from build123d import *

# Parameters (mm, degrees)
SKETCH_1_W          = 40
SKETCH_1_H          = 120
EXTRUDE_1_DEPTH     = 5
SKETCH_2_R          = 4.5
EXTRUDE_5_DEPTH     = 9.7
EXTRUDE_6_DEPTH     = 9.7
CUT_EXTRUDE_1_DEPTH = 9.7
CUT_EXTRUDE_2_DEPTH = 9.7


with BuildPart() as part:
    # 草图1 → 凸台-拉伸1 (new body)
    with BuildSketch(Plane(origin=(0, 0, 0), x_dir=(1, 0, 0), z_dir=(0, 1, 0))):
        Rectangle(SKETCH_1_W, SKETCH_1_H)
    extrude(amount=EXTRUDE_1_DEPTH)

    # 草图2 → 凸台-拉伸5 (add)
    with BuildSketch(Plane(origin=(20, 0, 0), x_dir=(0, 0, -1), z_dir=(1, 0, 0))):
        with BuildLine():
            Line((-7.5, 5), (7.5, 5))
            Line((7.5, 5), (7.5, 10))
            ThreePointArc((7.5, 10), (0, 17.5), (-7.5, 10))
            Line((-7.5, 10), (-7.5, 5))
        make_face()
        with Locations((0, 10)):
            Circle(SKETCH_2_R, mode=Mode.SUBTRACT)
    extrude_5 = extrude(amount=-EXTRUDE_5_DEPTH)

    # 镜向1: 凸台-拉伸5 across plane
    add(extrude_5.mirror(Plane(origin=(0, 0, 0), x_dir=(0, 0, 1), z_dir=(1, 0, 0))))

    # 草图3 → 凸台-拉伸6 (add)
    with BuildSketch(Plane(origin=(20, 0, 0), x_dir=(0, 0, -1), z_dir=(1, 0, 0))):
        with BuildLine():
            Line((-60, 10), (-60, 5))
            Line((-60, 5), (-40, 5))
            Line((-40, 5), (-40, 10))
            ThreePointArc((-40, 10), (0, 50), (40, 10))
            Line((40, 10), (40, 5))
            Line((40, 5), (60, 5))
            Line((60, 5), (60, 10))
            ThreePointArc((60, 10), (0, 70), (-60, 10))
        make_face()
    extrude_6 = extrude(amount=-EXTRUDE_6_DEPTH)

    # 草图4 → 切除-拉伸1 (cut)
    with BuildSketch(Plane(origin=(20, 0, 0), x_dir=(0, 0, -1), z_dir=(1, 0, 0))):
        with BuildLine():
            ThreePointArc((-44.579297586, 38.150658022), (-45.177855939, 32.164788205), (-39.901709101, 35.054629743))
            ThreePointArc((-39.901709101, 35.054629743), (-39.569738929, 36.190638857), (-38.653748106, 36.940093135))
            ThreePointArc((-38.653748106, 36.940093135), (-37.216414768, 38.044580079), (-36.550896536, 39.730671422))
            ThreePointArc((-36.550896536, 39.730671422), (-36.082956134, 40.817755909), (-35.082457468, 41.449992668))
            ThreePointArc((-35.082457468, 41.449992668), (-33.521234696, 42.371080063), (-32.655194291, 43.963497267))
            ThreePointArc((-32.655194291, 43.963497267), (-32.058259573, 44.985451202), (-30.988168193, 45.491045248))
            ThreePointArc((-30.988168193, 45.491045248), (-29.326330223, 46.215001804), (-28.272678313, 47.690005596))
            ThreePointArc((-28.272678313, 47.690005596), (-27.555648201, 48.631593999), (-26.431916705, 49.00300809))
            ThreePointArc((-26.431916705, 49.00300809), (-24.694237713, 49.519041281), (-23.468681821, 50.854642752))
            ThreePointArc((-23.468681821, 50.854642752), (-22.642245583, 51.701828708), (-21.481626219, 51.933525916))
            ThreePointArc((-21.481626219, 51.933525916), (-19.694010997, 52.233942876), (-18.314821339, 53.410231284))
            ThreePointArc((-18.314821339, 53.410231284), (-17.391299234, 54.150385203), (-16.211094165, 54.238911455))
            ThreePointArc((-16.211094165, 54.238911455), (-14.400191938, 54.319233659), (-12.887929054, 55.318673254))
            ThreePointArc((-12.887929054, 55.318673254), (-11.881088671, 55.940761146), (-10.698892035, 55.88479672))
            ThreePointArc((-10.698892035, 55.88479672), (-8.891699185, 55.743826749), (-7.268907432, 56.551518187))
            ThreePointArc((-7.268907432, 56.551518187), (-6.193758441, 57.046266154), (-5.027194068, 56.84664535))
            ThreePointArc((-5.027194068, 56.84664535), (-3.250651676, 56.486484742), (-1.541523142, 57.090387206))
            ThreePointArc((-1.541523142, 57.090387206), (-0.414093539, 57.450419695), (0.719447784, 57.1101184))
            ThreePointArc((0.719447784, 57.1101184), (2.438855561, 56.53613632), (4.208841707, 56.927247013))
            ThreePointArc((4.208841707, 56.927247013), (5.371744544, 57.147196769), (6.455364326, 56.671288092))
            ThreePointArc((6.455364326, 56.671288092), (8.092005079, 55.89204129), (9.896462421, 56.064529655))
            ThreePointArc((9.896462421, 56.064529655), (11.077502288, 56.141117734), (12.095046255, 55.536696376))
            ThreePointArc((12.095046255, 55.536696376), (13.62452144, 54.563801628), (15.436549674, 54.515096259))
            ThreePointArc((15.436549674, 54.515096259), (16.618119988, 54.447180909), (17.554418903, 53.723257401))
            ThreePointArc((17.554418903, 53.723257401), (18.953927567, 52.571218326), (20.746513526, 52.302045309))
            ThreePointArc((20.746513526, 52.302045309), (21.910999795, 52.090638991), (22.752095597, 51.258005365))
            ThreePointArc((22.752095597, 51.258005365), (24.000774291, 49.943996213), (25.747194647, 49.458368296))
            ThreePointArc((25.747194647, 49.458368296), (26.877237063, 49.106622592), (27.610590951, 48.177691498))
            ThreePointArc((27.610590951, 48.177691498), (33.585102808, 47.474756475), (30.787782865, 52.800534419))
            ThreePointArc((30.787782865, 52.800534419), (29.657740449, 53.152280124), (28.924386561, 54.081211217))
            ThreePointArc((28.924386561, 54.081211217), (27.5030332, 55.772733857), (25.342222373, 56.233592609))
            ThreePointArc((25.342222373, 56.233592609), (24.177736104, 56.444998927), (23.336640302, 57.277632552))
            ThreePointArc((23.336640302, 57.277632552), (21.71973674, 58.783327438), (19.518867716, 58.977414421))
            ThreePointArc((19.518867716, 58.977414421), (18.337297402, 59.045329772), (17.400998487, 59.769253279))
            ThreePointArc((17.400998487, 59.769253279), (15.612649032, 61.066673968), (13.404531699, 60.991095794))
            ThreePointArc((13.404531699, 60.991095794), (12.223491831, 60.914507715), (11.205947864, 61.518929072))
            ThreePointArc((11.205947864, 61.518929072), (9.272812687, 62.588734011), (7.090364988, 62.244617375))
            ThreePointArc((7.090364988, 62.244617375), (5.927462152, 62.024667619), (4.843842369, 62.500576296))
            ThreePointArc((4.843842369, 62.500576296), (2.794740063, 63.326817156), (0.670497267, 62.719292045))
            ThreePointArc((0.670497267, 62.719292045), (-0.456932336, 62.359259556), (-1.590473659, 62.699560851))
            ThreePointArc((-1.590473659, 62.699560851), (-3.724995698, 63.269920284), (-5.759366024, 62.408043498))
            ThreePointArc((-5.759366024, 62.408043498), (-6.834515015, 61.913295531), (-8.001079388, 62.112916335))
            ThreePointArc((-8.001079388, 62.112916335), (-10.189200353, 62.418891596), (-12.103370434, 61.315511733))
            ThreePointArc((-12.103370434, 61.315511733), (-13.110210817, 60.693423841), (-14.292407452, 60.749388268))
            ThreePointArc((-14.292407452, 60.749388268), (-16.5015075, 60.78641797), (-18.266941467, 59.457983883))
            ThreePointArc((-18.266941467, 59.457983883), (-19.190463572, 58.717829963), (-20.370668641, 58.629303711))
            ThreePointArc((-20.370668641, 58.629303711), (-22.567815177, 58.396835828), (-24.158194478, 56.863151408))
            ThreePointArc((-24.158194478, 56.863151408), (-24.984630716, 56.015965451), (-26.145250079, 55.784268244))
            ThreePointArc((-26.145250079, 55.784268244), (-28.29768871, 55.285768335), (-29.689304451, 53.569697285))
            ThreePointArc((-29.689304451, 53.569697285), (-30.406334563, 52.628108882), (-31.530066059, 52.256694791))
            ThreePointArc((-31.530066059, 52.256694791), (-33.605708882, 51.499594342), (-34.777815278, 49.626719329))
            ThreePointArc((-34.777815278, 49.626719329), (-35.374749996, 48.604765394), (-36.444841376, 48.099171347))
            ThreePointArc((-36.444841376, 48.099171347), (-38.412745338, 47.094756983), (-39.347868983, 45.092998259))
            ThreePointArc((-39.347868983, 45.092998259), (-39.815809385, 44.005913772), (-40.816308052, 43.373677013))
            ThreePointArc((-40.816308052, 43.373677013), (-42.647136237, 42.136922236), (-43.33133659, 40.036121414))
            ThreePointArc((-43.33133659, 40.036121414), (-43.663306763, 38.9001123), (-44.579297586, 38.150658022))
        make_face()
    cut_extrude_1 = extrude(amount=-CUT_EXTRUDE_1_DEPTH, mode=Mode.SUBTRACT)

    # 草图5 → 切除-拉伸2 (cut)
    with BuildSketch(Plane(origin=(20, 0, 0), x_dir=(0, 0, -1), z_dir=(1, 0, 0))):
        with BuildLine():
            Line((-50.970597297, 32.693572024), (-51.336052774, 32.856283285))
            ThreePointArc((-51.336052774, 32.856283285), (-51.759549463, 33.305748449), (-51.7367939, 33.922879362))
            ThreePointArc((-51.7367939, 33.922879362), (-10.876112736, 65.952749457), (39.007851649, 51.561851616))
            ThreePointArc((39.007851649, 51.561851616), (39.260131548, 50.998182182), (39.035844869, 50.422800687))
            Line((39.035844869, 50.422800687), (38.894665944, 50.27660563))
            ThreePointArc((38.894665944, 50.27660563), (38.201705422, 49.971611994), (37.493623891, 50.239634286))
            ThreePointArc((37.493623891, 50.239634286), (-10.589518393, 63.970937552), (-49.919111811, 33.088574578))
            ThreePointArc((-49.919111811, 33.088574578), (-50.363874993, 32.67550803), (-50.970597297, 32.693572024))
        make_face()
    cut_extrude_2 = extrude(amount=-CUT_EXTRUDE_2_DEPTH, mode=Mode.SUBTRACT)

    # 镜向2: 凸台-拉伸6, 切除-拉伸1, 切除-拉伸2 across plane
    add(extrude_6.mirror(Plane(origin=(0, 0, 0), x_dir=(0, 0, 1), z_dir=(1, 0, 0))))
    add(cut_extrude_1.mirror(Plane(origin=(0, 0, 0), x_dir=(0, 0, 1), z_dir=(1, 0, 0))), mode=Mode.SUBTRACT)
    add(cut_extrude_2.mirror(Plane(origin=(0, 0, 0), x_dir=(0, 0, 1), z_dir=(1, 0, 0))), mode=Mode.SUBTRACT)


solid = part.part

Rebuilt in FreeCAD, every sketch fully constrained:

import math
import FreeCAD as App
import Part
import Sketcher
from FreeCAD import Vector
Q = App.Units.Quantity


def add_polygon(sketch, points):
    """Adds a closed chain of lines whose ends are joined by coincident constraints."""
    first, n = sketch.GeometryCount, len(points)
    for a, b in zip(points, points[1:] + points[:1]):
        sketch.addGeometry(Part.LineSegment(App.Vector(*a, 0), App.Vector(*b, 0)), False)
    for i in range(n):
        sketch.addConstraint(Sketcher.Constraint("Coincident", first + i, 2, first + (i + 1) % n, 1))

doc = App.newDocument("Part")
params = doc.addObject("Spreadsheet::Sheet", "Params")
for row, (alias, value) in enumerate([
    ("sketch1_width", "40 mm"),
    ("sketch1_height", "120 mm"),
    ("pad1_length", "5 mm"),
    ("sketch2_diameter", "9 mm"),
    ("sketch2_radius", "7.5 mm"),
    ("sketch2_width", "5 mm"),
    ("pad2_length", "9.7 mm"),
    ("sketch3_radius", "40 mm"),
    ("sketch3_radius2", "60 mm"),
    ("sketch3_width", "5 mm"),
    ("pad3_length", "9.7 mm"),
    ("sketch4_radius", "2 mm"),
    ("sketch4_radius2", "3.4 mm"),
    ("pocket1_length", "9.7 mm"),
    ("sketch5_radius", "55 mm"),
    ("sketch5_radius2", "1 mm"),
    ("sketch5_radius3", "57 mm"),
    ("sketch5_radius4", "0.8 mm"),
    ("pocket2_length", "9.7 mm"),
], start=1):
    params.set(f"A{row}", alias)
    params.set(f"B{row}", "=" + value)
    params.setAlias(f"B{row}", alias)

body = doc.addObject("PartDesign::Body", "Body")

sketch1 = doc.addObject("Sketcher::SketchObject", "Sketch")
body.addObject(sketch1)
sketch1.AttachmentSupport = (doc.XZ_Plane, [""])
sketch1.MapMode = "FlatFace"
add_polygon(sketch1, [(-20, -60), (-20, 60), (20, 60), (20, -60)])
sketch1.addConstraint([
    Sketcher.Constraint("Vertical", 0),
    Sketcher.Constraint("Horizontal", 1),
    Sketcher.Constraint("Vertical", 2),
    Sketcher.Constraint("Horizontal", 3),
    Sketcher.Constraint("Symmetric", 0, 2, 2, 2, -1, 1),
    Sketcher.Constraint("DistanceX", 1, 1, 1, 2, Q("40 mm")),
    Sketcher.Constraint("DistanceY", 0, 1, 0, 2, Q("120 mm")),
])
sketch1.setExpression("Constraints[9]", "Params.sketch1_width")
sketch1.setExpression("Constraints[10]", "Params.sketch1_height")
pad1 = doc.addObject("PartDesign::Pad", "Pad")
body.addObject(pad1)
pad1.Profile = sketch1
pad1.setExpression("Length", "Params.pad1_length")
pad1.Reversed = True

sketch2 = doc.addObject("Sketcher::SketchObject", "Sketch001")
body.addObject(sketch2)
sketch2.AttachmentSupport = (doc.YZ_Plane, [""])
sketch2.MapMode = "FlatFace"
sketch2.AttachmentOffset = App.Placement(Vector(0, 0, 20), App.Rotation())
sketch2.addGeometry([
    Part.LineSegment(Vector(5, 7.5, 0), Vector(5, -7.5, 0)),
    Part.LineSegment(Vector(5, -7.5, 0), Vector(10, -7.5, 0)),
    Part.ArcOfCircle(Part.Circle(Vector(10, 0, 0), Vector(0, 0, 1), 7.5), math.radians(-90), math.radians(90)),
    Part.LineSegment(Vector(10, 7.5, 0), Vector(5, 7.5, 0)),
    Part.Circle(Vector(10, 0, 0), Vector(0, 0, 1), 4.5),
], False)
sketch2.addConstraint([
    Sketcher.Constraint("Coincident", 0, 2, 1, 1),
    Sketcher.Constraint("Tangent", 1, 2, 2, 1),
    Sketcher.Constraint("Tangent", 2, 2, 3, 1),
    Sketcher.Constraint("Coincident", 3, 2, 0, 1),
    Sketcher.Constraint("Vertical", 0),
    Sketcher.Constraint("Horizontal", 1),
    Sketcher.Constraint("Horizontal", 3),
    Sketcher.Constraint("Coincident", 4, 3, 2, 3),
    Sketcher.Constraint("PointOnObject", 2, 3, -1),
    Sketcher.Constraint("Diameter", 4, Q("9 mm")),
    Sketcher.Constraint("Radius", 2, Q("7.5 mm")),
    Sketcher.Constraint("DistanceX", 1, 1, 1, 2, Q("5 mm")),
    Sketcher.Constraint("DistanceX", -1, 1, 2, 3, Q("10 mm")),
])
sketch2.setExpression("Constraints[9]", "Params.sketch2_diameter")
sketch2.setExpression("Constraints[10]", "Params.sketch2_radius")
sketch2.setExpression("Constraints[11]", "Params.sketch2_width")
pad2 = doc.addObject("PartDesign::Pad", "Pad001")
body.addObject(pad2)
pad2.Profile = sketch2
pad2.setExpression("Length", "Params.pad2_length")
pad2.Reversed = True
doc.recompute()

mirrored = doc.addObject("PartDesign::Mirrored", "Mirrored")
body.addObject(mirrored)
mirrored.Originals = [pad2]
mirrored.MirrorPlane = (doc.YZ_Plane, [""])
body.Tip = mirrored

sketch3 = doc.addObject("Sketcher::SketchObject", "Sketch002")
body.addObject(sketch3)
sketch3.AttachmentSupport = (doc.YZ_Plane, [""])
sketch3.MapMode = "FlatFace"
sketch3.AttachmentOffset = App.Placement(Vector(0, 0, 20), App.Rotation())
sketch3.addGeometry([
    Part.LineSegment(Vector(10, 60, 0), Vector(5, 60, 0)),
    Part.LineSegment(Vector(5, 60, 0), Vector(5, 40, 0)),
    Part.LineSegment(Vector(5, 40, 0), Vector(10, 40, 0)),
    Part.ArcOfCircle(Part.Circle(Vector(10, 0, 0), Vector(0, 0, 1), 40), math.radians(-90), math.radians(90)),
    Part.LineSegment(Vector(10, -40, 0), Vector(5, -40, 0)),
    Part.LineSegment(Vector(5, -40, 0), Vector(5, -60, 0)),
    Part.LineSegment(Vector(5, -60, 0), Vector(10, -60, 0)),
    Part.ArcOfCircle(Part.Circle(Vector(10, 0, 0), Vector(0, 0, 1), 60), math.radians(-90), math.radians(90)),
], False)
sketch3.addConstraint([
    Sketcher.Constraint("Coincident", 0, 2, 1, 1),
    Sketcher.Constraint("Coincident", 1, 2, 2, 1),
    Sketcher.Constraint("Tangent", 2, 2, 3, 2),
    Sketcher.Constraint("Tangent", 3, 1, 4, 1),
    Sketcher.Constraint("Coincident", 4, 2, 5, 1),
    Sketcher.Constraint("Coincident", 5, 2, 6, 1),
    Sketcher.Constraint("Tangent", 6, 2, 7, 1),
    Sketcher.Constraint("Tangent", 7, 2, 0, 1),
    Sketcher.Constraint("Horizontal", 0),
    Sketcher.Constraint("Vertical", 1),
    Sketcher.Constraint("Horizontal", 2),
    Sketcher.Constraint("Horizontal", 4),
    Sketcher.Constraint("Vertical", 5),
    Sketcher.Constraint("Horizontal", 6),
    Sketcher.Constraint("Coincident", 7, 3, 3, 3),
    Sketcher.Constraint("Symmetric", 1, 2, 4, 2, -1),
    Sketcher.Constraint("Radius", 3, Q("40 mm")),
    Sketcher.Constraint("Radius", 7, Q("60 mm")),
    Sketcher.Constraint("DistanceX", 0, 2, 0, 1, Q("5 mm")),
    Sketcher.Constraint("DistanceX", -1, 1, 3, 3, Q("10 mm")),
])
sketch3.setExpression("Constraints[16]", "Params.sketch3_radius")
sketch3.setExpression("Constraints[17]", "Params.sketch3_radius2")
sketch3.setExpression("Constraints[18]", "Params.sketch3_width")
pad3 = doc.addObject("PartDesign::Pad", "Pad002")
body.addObject(pad3)
pad3.Profile = sketch3
pad3.setExpression("Length", "Params.pad3_length")
pad3.Reversed = True

sketch4 = doc.addObject("Sketcher::SketchObject", "Sketch003")
body.addObject(sketch4)
sketch4.AttachmentSupport = (doc.YZ_Plane, [""])
sketch4.MapMode = "FlatFace"
sketch4.AttachmentOffset = App.Placement(Vector(0, 0, 20), App.Rotation())
sketch4.addGeometry([
    Part.ArcOfCircle(Part.Circle(Vector(35, 43.30127, 0), Vector(0, 0, 1), 3.4), math.radians(22.079356), math.radians(270.920644)),
    Part.ArcOfCircle(Part.Circle(Vector(35.086765, 37.901967, 0), Vector(0, 0, 1), 2), math.radians(22.079356), math.radians(90.920644)),
    Part.ArcOfCircle(Part.Circle(Vector(40.090751, 39.931776, 0), Vector(0, 0, 1), 3.4), math.radians(-157.920644), math.radians(-96.079356)),
    Part.ArcOfCircle(Part.Circle(Vector(39.51886, 34.562144, 0), Vector(0, 0, 1), 2), math.radians(15.079356), math.radians(83.920644)),
    Part.ArcOfCircle(Part.Circle(Vector(44.732919, 35.96699, 0), Vector(0, 0, 1), 3.4), math.radians(-164.920644), math.radians(-103.079356)),
    Part.ArcOfCircle(Part.Circle(Vector(43.510897, 30.707079, 0), Vector(0, 0, 1), 2), math.radians(8.079356), math.radians(76.920644)),
    Part.ArcOfCircle(Part.Circle(Vector(48.857298, 31.46602, 0), Vector(0, 0, 1), 3.4), math.radians(-171.920644), math.radians(-110.079356)),
    Part.ArcOfCircle(Part.Circle(Vector(47.003363, 26.394242, 0), Vector(0, 0, 1), 2), math.radians(1.079356), math.radians(69.920644)),
    Part.ArcOfCircle(Part.Circle(Vector(52.402405, 26.495963, 0), Vector(0, 0, 1), 3.4), math.radians(-178.920644), math.radians(-117.079356)),
    Part.ArcOfCircle(Part.Circle(Vector(49.944194, 21.687928, 0), Vector(0, 0, 1), 2), math.radians(-5.920644), math.radians(62.920644)),
    Part.ArcOfCircle(Part.Circle(Vector(55.315389, 21.130913, 0), Vector(0, 0, 1), 3.4), math.radians(174.079356), math.radians(235.920644)),
    Part.ArcOfCircle(Part.Circle(Vector(52.28955, 16.658297, 0), Vector(0, 0, 1), 2), math.radians(-12.920644), math.radians(55.920644)),
    Part.ArcOfCircle(Part.Circle(Vector(57.552826, 15.45085, 0), Vector(0, 0, 1), 3.4), math.radians(167.079356), math.radians(228.920644)),
    Part.ArcOfCircle(Part.Circle(Vector(54.004466, 11.380329, 0), Vector(0, 0, 1), 2), math.radians(-19.920644), math.radians(48.920644)),
    Part.ArcOfCircle(Part.Circle(Vector(59.081359, 9.54045, 0), Vector(0, 0, 1), 3.4), math.radians(160.079356), math.radians(221.920644)),
    Part.ArcOfCircle(Part.Circle(Vector(55.063376, 5.932706, 0), Vector(0, 0, 1), 2), math.radians(-26.920644), math.radians(41.920644)),
    Part.ArcOfCircle(Part.Circle(Vector(59.878203, 3.487824, 0), Vector(0, 0, 1), 3.4), math.radians(153.079356), math.radians(214.920644)),
    Part.ArcOfCircle(Part.Circle(Vector(55.450496, 0.39664, 0), Vector(0, 0, 1), 2), math.radians(-33.920644), math.radians(34.920644)),
    Part.ArcOfCircle(Part.Circle(Vector(59.931477, -2.616798, 0), Vector(0, 0, 1), 3.4), math.radians(146.079356), math.radians(207.920644)),
    Part.ArcOfCircle(Part.Circle(Vector(55.160053, -5.145338, 0), Vector(0, 0, 1), 2), math.radians(-40.920644), math.radians(27.920644)),
    Part.ArcOfCircle(Part.Circle(Vector(59.240388, -8.682409, 0), Vector(0, 0, 1), 3.4), math.radians(139.079356), math.radians(200.920644)),
    Part.ArcOfCircle(Part.Circle(Vector(54.196378, -10.610612, 0), Vector(0, 0, 1), 2), math.radians(-47.920644), math.radians(20.920644)),
    Part.ArcOfCircle(Part.Circle(Vector(57.815238, -14.618585, 0), Vector(0, 0, 1), 3.4), math.radians(132.079356), math.radians(193.920644)),
    Part.ArcOfCircle(Part.Circle(Vector(52.573837, -15.917705, 0), Vector(0, 0, 1), 2), math.radians(-54.920644), math.radians(13.920644)),
    Part.ArcOfCircle(Part.Circle(Vector(55.677273, -20.336832, 0), Vector(0, 0, 1), 3.4), math.radians(125.079356), math.radians(186.920644)),
    Part.ArcOfCircle(Part.Circle(Vector(50.316617, -20.987503, 0), Vector(0, 0, 1), 2), math.radians(-61.920644), math.radians(6.920644)),
    Part.ArcOfCircle(Part.Circle(Vector(52.858365, -25.751904, 0), Vector(0, 0, 1), 3.4), math.radians(118.079356), math.radians(179.920644)),
    Part.ArcOfCircle(Part.Circle(Vector(47.45837, -25.744425, 0), Vector(0, 0, 1), 2), math.radians(-68.920644), math.radians(-0.079356)),
    Part.ArcOfCircle(Part.Circle(Vector(49.400538, -30.783074, 0), Vector(0, 0, 1), 3.4), math.radians(111.079356), math.radians(359.920644)),
    Part.ArcOfCircle(Part.Circle(Vector(54.800533, -30.790553, 0), Vector(0, 0, 1), 2), math.radians(111.079356), math.radians(179.920644)),
    Part.ArcOfCircle(Part.Circle(Vector(52.858365, -25.751904, 0), Vector(0, 0, 1), 3.4), math.radians(-68.920644), math.radians(6.920644)),
    Part.ArcOfCircle(Part.Circle(Vector(58.219021, -25.101233, 0), Vector(0, 0, 1), 2), math.radians(118.079356), math.radians(186.920644)),
    Part.ArcOfCircle(Part.Circle(Vector(55.677273, -20.336832, 0), Vector(0, 0, 1), 3.4), math.radians(-61.920644), math.radians(13.920644)),
    Part.ArcOfCircle(Part.Circle(Vector(60.918674, -19.037712, 0), Vector(0, 0, 1), 2), math.radians(125.079356), math.radians(193.920644)),
    Part.ArcOfCircle(Part.Circle(Vector(57.815238, -14.618585, 0), Vector(0, 0, 1), 3.4), math.radians(-54.920644), math.radians(20.920644)),
    Part.ArcOfCircle(Part.Circle(Vector(62.859248, -12.690383, 0), Vector(0, 0, 1), 2), math.radians(132.079356), math.radians(200.920644)),
    Part.ArcOfCircle(Part.Circle(Vector(59.240388, -8.682409, 0), Vector(0, 0, 1), 3.4), math.radians(-47.920644), math.radians(27.920644)),
    Part.ArcOfCircle(Part.Circle(Vector(64.011811, -6.153869, 0), Vector(0, 0, 1), 2), math.radians(139.079356), math.radians(207.920644)),
    Part.ArcOfCircle(Part.Circle(Vector(59.931477, -2.616798, 0), Vector(0, 0, 1), 3.4), math.radians(-40.920644), math.radians(34.920644)),
    Part.ArcOfCircle(Part.Circle(Vector(64.359183, 0.474385, 0), Vector(0, 0, 1), 2), math.radians(146.079356), math.radians(214.920644)),
    Part.ArcOfCircle(Part.Circle(Vector(59.878203, 3.487824, 0), Vector(0, 0, 1), 3.4), math.radians(-33.920644), math.radians(41.920644)),
    Part.ArcOfCircle(Part.Circle(Vector(63.896185, 7.095567, 0), Vector(0, 0, 1), 2), math.radians(153.079356), math.radians(221.920644)),
    Part.ArcOfCircle(Part.Circle(Vector(59.081359, 9.54045, 0), Vector(0, 0, 1), 3.4), math.radians(-26.920644), math.radians(48.920644)),
    Part.ArcOfCircle(Part.Circle(Vector(62.629719, 13.610971, 0), Vector(0, 0, 1), 2), math.radians(160.079356), math.radians(228.920644)),
    Part.ArcOfCircle(Part.Circle(Vector(57.552826, 15.45085, 0), Vector(0, 0, 1), 3.4), math.radians(-19.920644), math.radians(55.920644)),
    Part.ArcOfCircle(Part.Circle(Vector(60.578665, 19.923466, 0), Vector(0, 0, 1), 2), math.radians(167.079356), math.radians(235.920644)),
    Part.ArcOfCircle(Part.Circle(Vector(55.315389, 21.130913, 0), Vector(0, 0, 1), 3.4), math.radians(-12.920644), math.radians(62.920644)),
    Part.ArcOfCircle(Part.Circle(Vector(57.7736, 25.938948, 0), Vector(0, 0, 1), 2), math.radians(174.079356), math.radians(242.920644)),
    Part.ArcOfCircle(Part.Circle(Vector(52.402405, 26.495963, 0), Vector(0, 0, 1), 3.4), math.radians(-5.920644), math.radians(69.920644)),
    Part.ArcOfCircle(Part.Circle(Vector(54.25634, 31.56774, 0), Vector(0, 0, 1), 2), math.radians(-178.920644), math.radians(-110.079356)),
    Part.ArcOfCircle(Part.Circle(Vector(48.857298, 31.46602, 0), Vector(0, 0, 1), 3.4), math.radians(1.079356), math.radians(76.920644)),
    Part.ArcOfCircle(Part.Circle(Vector(50.07932, 36.72593, 0), Vector(0, 0, 1), 2), math.radians(-171.920644), math.radians(-103.079356)),
    Part.ArcOfCircle(Part.Circle(Vector(44.732919, 35.96699, 0), Vector(0, 0, 1), 3.4), math.radians(8.079356), math.radians(83.920644)),
    Part.ArcOfCircle(Part.Circle(Vector(45.30481, 41.336621, 0), Vector(0, 0, 1), 2), math.radians(-164.920644), math.radians(-96.079356)),
    Part.ArcOfCircle(Part.Circle(Vector(40.090751, 39.931776, 0), Vector(0, 0, 1), 3.4), math.radians(15.079356), math.radians(90.920644)),
    Part.ArcOfCircle(Part.Circle(Vector(40.003986, 45.331078, 0), Vector(0, 0, 1), 2), math.radians(-157.920644), math.radians(-89.079356)),
], False)
sketch4.addConstraint([
    Sketcher.Constraint("Tangent", 0, 2, 1, 2),
    Sketcher.Constraint("Tangent", 1, 1, 2, 1),
    Sketcher.Constraint("Tangent", 2, 2, 3, 2),
    Sketcher.Constraint("Tangent", 3, 1, 4, 1),
    Sketcher.Constraint("Tangent", 4, 2, 5, 2),
    Sketcher.Constraint("Tangent", 5, 1, 6, 1),
    Sketcher.Constraint("Tangent", 6, 2, 7, 2),
    Sketcher.Constraint("Tangent", 7, 1, 8, 1),
    Sketcher.Constraint("Tangent", 8, 2, 9, 2),
    Sketcher.Constraint("Tangent", 9, 1, 10, 1),
    Sketcher.Constraint("Tangent", 10, 2, 11, 2),
    Sketcher.Constraint("Tangent", 11, 1, 12, 1),
    Sketcher.Constraint("Tangent", 12, 2, 13, 2),
    Sketcher.Constraint("Tangent", 13, 1, 14, 1),
    Sketcher.Constraint("Tangent", 14, 2, 15, 2),
    Sketcher.Constraint("Tangent", 15, 1, 16, 1),
    Sketcher.Constraint("Tangent", 16, 2, 17, 2),
    Sketcher.Constraint("Tangent", 17, 1, 18, 1),
    Sketcher.Constraint("Tangent", 18, 2, 19, 2),
    Sketcher.Constraint("Tangent", 19, 1, 20, 1),
    Sketcher.Constraint("Tangent", 20, 2, 21, 2),
    Sketcher.Constraint("Tangent", 21, 1, 22, 1),
    Sketcher.Constraint("Tangent", 22, 2, 23, 2),
    Sketcher.Constraint("Tangent", 23, 1, 24, 1),
    Sketcher.Constraint("Tangent", 24, 2, 25, 2),
    Sketcher.Constraint("Tangent", 25, 1, 26, 1),
    Sketcher.Constraint("Tangent", 26, 2, 27, 2),
    Sketcher.Constraint("Tangent", 27, 1, 28, 1),
    Sketcher.Constraint("Tangent", 28, 2, 29, 2),
    Sketcher.Constraint("Tangent", 29, 1, 30, 1),
    Sketcher.Constraint("Tangent", 30, 2, 31, 2),
    Sketcher.Constraint("Tangent", 31, 1, 32, 1),
    Sketcher.Constraint("Tangent", 32, 2, 33, 2),
    Sketcher.Constraint("Tangent", 33, 1, 34, 1),
    Sketcher.Constraint("Tangent", 34, 2, 35, 2),
    Sketcher.Constraint("Tangent", 35, 1, 36, 1),
    Sketcher.Constraint("Tangent", 36, 2, 37, 2),
    Sketcher.Constraint("Tangent", 37, 1, 38, 1),
    Sketcher.Constraint("Tangent", 38, 2, 39, 2),
    Sketcher.Constraint("Tangent", 39, 1, 40, 1),
    Sketcher.Constraint("Tangent", 40, 2, 41, 2),
    Sketcher.Constraint("Tangent", 41, 1, 42, 1),
    Sketcher.Constraint("Tangent", 42, 2, 43, 2),
    Sketcher.Constraint("Tangent", 43, 1, 44, 1),
    Sketcher.Constraint("Tangent", 44, 2, 45, 2),
    Sketcher.Constraint("Tangent", 45, 1, 46, 1),
    Sketcher.Constraint("Tangent", 46, 2, 47, 2),
    Sketcher.Constraint("Tangent", 47, 1, 48, 1),
    Sketcher.Constraint("Tangent", 48, 2, 49, 2),
    Sketcher.Constraint("Tangent", 49, 1, 50, 1),
    Sketcher.Constraint("Tangent", 50, 2, 51, 2),
    Sketcher.Constraint("Tangent", 51, 1, 52, 1),
    Sketcher.Constraint("Tangent", 52, 2, 53, 2),
    Sketcher.Constraint("Tangent", 53, 1, 54, 1),
    Sketcher.Constraint("Tangent", 54, 2, 55, 2),
    Sketcher.Constraint("Tangent", 55, 1, 0, 1),
    Sketcher.Constraint("Coincident", 30, 3, 26, 3),
    Sketcher.Constraint("Coincident", 32, 3, 24, 3),
    Sketcher.Constraint("Coincident", 34, 3, 22, 3),
    Sketcher.Constraint("Coincident", 36, 3, 20, 3),
    Sketcher.Constraint("Coincident", 38, 3, 18, 3),
    Sketcher.Constraint("Coincident", 40, 3, 16, 3),
    Sketcher.Constraint("Coincident", 42, 3, 14, 3),
    Sketcher.Constraint("Coincident", 44, 3, 12, 3),
    Sketcher.Constraint("Coincident", 46, 3, 10, 3),
    Sketcher.Constraint("Coincident", 48, 3, 8, 3),
    Sketcher.Constraint("Coincident", 50, 3, 6, 3),
    Sketcher.Constraint("Coincident", 52, 3, 4, 3),
    Sketcher.Constraint("Coincident", 54, 3, 2, 3),
    Sketcher.Constraint("Equal", 0, 2),
    Sketcher.Constraint("Equal", 1, 3),
    Sketcher.Constraint("Equal", 2, 4),
    Sketcher.Constraint("Equal", 3, 5),
    Sketcher.Constraint("Equal", 4, 6),
    Sketcher.Constraint("Equal", 5, 7),
    Sketcher.Constraint("Equal", 6, 8),
    Sketcher.Constraint("Equal", 7, 9),
    Sketcher.Constraint("Equal", 8, 10),
    Sketcher.Constraint("Equal", 9, 11),
    Sketcher.Constraint("Equal", 10, 12),
    Sketcher.Constraint("Equal", 11, 13),
    Sketcher.Constraint("Equal", 12, 14),
    Sketcher.Constraint("Equal", 13, 15),
    Sketcher.Constraint("Equal", 14, 16),
    Sketcher.Constraint("Equal", 15, 17),
    Sketcher.Constraint("Equal", 16, 18),
    Sketcher.Constraint("Equal", 17, 19),
    Sketcher.Constraint("Equal", 18, 20),
    Sketcher.Constraint("Equal", 19, 21),
    Sketcher.Constraint("Equal", 20, 22),
    Sketcher.Constraint("Equal", 21, 23),
    Sketcher.Constraint("Equal", 22, 24),
    Sketcher.Constraint("Equal", 23, 25),
    Sketcher.Constraint("Equal", 24, 26),
    Sketcher.Constraint("Equal", 25, 27),
    Sketcher.Constraint("Equal", 26, 28),
    Sketcher.Constraint("Equal", 27, 29),
    Sketcher.Constraint("Equal", 28, 30),
    Sketcher.Constraint("Equal", 29, 31),
    Sketcher.Constraint("Equal", 30, 32),
    Sketcher.Constraint("Equal", 31, 33),
    Sketcher.Constraint("Equal", 32, 34),
    Sketcher.Constraint("Equal", 33, 35),
    Sketcher.Constraint("Equal", 34, 36),
    Sketcher.Constraint("Equal", 35, 37),
    Sketcher.Constraint("Equal", 36, 38),
    Sketcher.Constraint("Equal", 37, 39),
    Sketcher.Constraint("Equal", 38, 40),
    Sketcher.Constraint("Equal", 39, 41),
    Sketcher.Constraint("Equal", 40, 42),
    Sketcher.Constraint("Equal", 41, 43),
    Sketcher.Constraint("Equal", 42, 44),
    Sketcher.Constraint("Equal", 43, 45),
    Sketcher.Constraint("Equal", 44, 46),
    Sketcher.Constraint("Equal", 45, 47),
    Sketcher.Constraint("Equal", 46, 48),
    Sketcher.Constraint("Equal", 47, 49),
    Sketcher.Constraint("Equal", 48, 50),
    Sketcher.Constraint("Equal", 49, 51),
    Sketcher.Constraint("Equal", 50, 52),
    Sketcher.Constraint("Equal", 51, 53),
    Sketcher.Constraint("Equal", 52, 54),
    Sketcher.Constraint("Equal", 53, 55),
    Sketcher.Constraint("Radius", 1, Q("2 mm")),
    Sketcher.Constraint("Radius", 0, Q("3.4 mm")),
    Sketcher.Constraint("DistanceX", -1, 1, 0, 3, Q("35 mm")),
    Sketcher.Constraint("DistanceY", 33, 1, -1, 1, Q("17.400998 mm")),
    Sketcher.Constraint("DistanceX", -1, 1, 52, 2, Q("45.092998 mm")),
    Sketcher.Constraint("DistanceX", -1, 1, 6, 3, Q("48.857298 mm")),
    Sketcher.Constraint("DistanceX", -1, 1, 47, 3, Q("57.7736 mm")),
    Sketcher.Constraint("DistanceY", -1, 1, 0, 3, Q("43.30127 mm")),
    Sketcher.Constraint("DistanceX", -1, 1, 2, 3, Q("40.090751 mm")),
    Sketcher.Constraint("DistanceX", -1, 1, 3, 3, Q("39.51886 mm")),
    Sketcher.Constraint("DistanceY", -1, 1, 4, 3, Q("35.96699 mm")),
    Sketcher.Constraint("DistanceY", -1, 1, 5, 3, Q("30.707079 mm")),
    Sketcher.Constraint("DistanceY", -1, 1, 9, 3, Q("21.687928 mm")),
    Sketcher.Constraint("DistanceX", -1, 1, 10, 3, Q("55.315389 mm")),
    Sketcher.Constraint("DistanceX", -1, 1, 11, 3, Q("52.28955 mm")),
    Sketcher.Constraint("DistanceY", -1, 1, 12, 3, Q("15.45085 mm")),
    Sketcher.Constraint("DistanceY", -1, 1, 13, 3, Q("11.380329 mm")),
    Sketcher.Constraint("DistanceX", -1, 1, 14, 3, Q("59.081359 mm")),
    Sketcher.Constraint("DistanceY", -1, 1, 14, 3, Q("9.54045 mm")),
    Sketcher.Constraint("DistanceY", -1, 1, 17, 3, Q("0.39664 mm")),
    Sketcher.Constraint("DistanceY", 19, 3, -1, 1, Q("5.145338 mm")),
    Sketcher.Constraint("DistanceY", 20, 3, -1, 1, Q("8.682409 mm")),
    Sketcher.Constraint("DistanceY", 21, 3, -1, 1, Q("10.610612 mm")),
    Sketcher.Constraint("DistanceX", -1, 1, 27, 3, Q("47.45837 mm")),
    Sketcher.Constraint("DistanceX", -1, 1, 31, 3, Q("58.219021 mm")),
    Sketcher.Constraint("DistanceX", -1, 1, 37, 3, Q("64.011811 mm")),
    Sketcher.Constraint("DistanceY", 37, 3, -1, 1, Q("6.153869 mm")),
    Sketcher.Constraint("DistanceX", -1, 1, 14, 2, Q("56.551518 mm")),
    Sketcher.Constraint("DistanceY", 22, 2, -1, 1, Q("15.43655 mm")),
    Sketcher.Constraint("DistanceY", 23, 1, -1, 1, Q("17.554419 mm")),
    Sketcher.Constraint("DistanceX", -1, 1, 27, 1, Q("48.177691 mm")),
    Sketcher.Constraint("DistanceY", 27, 1, -1, 1, Q("27.610591 mm")),
])
sketch4.setExpression("Constraints[123]", "Params.sketch4_radius")
sketch4.setExpression("Constraints[124]", "Params.sketch4_radius2")
pocket1 = doc.addObject("PartDesign::Pocket", "Pocket")
body.addObject(pocket1)
pocket1.Profile = sketch4
pocket1.setExpression("Length", "Params.pocket1_length")

sketch5 = doc.addObject("Sketcher::SketchObject", "Sketch004")
body.addObject(sketch5)
sketch5.AttachmentSupport = (doc.YZ_Plane, [""])
sketch5.MapMode = "FlatFace"
sketch5.AttachmentOffset = App.Placement(Vector(0, 0, 20), App.Rotation())
sketch5.addGeometry([
    Part.LineSegment(Vector(32.856283, 51.336053, 0), Vector(32.693572, 50.970597, 0)),
    Part.ArcOfCircle(Part.Circle(Vector(33.424408, 50.645208, 0), Vector(0, 0, 1), 0.8), math.radians(156), math.radians(245.178527)),
    Part.ArcOfCircle(Part.Circle(Vector(10, 0, 0), Vector(0, 0, 1), 55), math.radians(-42.976807), math.radians(65.178527)),
    Part.ArcOfCircle(Part.Circle(Vector(50.971264, -38.175326, 0), Vector(0, 0, 1), 1), math.radians(137.023193), math.radians(226)),
    Part.LineSegment(Vector(50.276606, -38.894666, 0), Vector(50.422801, -39.035845, 0)),
    Part.ArcOfCircle(Part.Circle(Vector(50.978527, -38.460373, 0), Vector(0, 0, 1), 0.8), math.radians(-134), math.radians(-43.184374)),
    Part.ArcOfCircle(Part.Circle(Vector(10, 0, 0), Vector(0, 0, 1), 57), math.radians(-43.184374), math.radians(65.184374)),
    Part.ArcOfCircle(Part.Circle(Vector(33.58712, 51.010663, 0), Vector(0, 0, 1), 0.8), math.radians(65.184374), math.radians(156)),
], False)
sketch5.addConstraint([
    Sketcher.Constraint("Tangent", 0, 2, 1, 1),
    Sketcher.Constraint("Tangent", 1, 2, 2, 2),
    Sketcher.Constraint("Tangent", 2, 1, 3, 1),
    Sketcher.Constraint("Tangent", 3, 2, 4, 1),
    Sketcher.Constraint("Tangent", 4, 2, 5, 1),
    Sketcher.Constraint("Tangent", 5, 2, 6, 1),
    Sketcher.Constraint("Tangent", 6, 2, 7, 1),
    Sketcher.Constraint("Tangent", 7, 2, 0, 1),
    Sketcher.Constraint("Coincident", 6, 3, 2, 3),
    Sketcher.Constraint("Equal", 1, 5),
    Sketcher.Constraint("Equal", 5, 7),
    Sketcher.Constraint("PointOnObject", 2, 3, -1),
    Sketcher.Constraint("Radius", 2, Q("55 mm")),
    Sketcher.Constraint("Radius", 3, Q("1 mm")),
    Sketcher.Constraint("Radius", 6, Q("57 mm")),
    Sketcher.Constraint("Radius", 1, Q("0.8 mm")),
    Sketcher.Constraint("Angle", 0, Q("-114 deg")),
    Sketcher.Constraint("Angle", 4, Q("-44 deg")),
    Sketcher.Constraint("DistanceX", -1, 1, 2, 3, Q("10 mm")),
    Sketcher.Constraint("DistanceX", -1, 1, 4, 2, Q("50.422801 mm")),
    Sketcher.Constraint("DistanceX", -1, 1, 1, 3, Q("33.424408 mm")),
])
sketch5.setExpression("Constraints[12]", "Params.sketch5_radius")
sketch5.setExpression("Constraints[13]", "Params.sketch5_radius2")
sketch5.setExpression("Constraints[14]", "Params.sketch5_radius3")
sketch5.setExpression("Constraints[15]", "Params.sketch5_radius4")
pocket2 = doc.addObject("PartDesign::Pocket", "Pocket001")
body.addObject(pocket2)
pocket2.Profile = sketch5
pocket2.setExpression("Length", "Params.pocket2_length")
doc.recompute()

mirrored2 = doc.addObject("PartDesign::Mirrored", "Mirrored001")
body.addObject(mirrored2)
mirrored2.Originals = [pad3, pocket1, pocket2]
mirrored2.MirrorPlane = (doc.YZ_Plane, [""])
body.Tip = mirrored2

doc.recompute()
